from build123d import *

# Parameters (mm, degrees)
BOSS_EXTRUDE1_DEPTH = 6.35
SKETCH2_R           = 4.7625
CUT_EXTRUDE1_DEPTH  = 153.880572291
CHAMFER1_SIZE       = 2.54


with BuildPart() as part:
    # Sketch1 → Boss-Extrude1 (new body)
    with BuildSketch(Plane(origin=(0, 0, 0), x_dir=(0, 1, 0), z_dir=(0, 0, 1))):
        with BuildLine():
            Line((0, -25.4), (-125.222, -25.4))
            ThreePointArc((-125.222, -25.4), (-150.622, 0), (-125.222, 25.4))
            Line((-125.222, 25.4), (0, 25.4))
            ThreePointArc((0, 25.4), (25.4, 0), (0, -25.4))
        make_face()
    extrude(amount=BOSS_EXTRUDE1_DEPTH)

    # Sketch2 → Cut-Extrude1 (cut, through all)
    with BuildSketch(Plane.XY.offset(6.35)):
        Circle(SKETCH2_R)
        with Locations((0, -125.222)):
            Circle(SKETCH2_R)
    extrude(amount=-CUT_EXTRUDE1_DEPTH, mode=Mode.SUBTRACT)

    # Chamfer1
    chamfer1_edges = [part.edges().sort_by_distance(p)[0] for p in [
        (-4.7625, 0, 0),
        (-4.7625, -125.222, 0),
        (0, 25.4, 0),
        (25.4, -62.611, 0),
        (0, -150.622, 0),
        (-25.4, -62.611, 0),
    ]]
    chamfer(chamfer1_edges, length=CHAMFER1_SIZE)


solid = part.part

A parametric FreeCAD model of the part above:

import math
import FreeCAD as App
import Part
import Sketcher
from FreeCAD import Vector
Q = App.Units.Quantity


def edges_at(feature, points):
    """Names of the edges that pass closest to the given points."""
    edges = feature.Shape.Edges
    near = lambda p: min(range(len(edges)), key=lambda i: edges[i].distToShape(Part.Vertex(*p))[0])
    return sorted({f"Edge{near(p) + 1}" for p in points})

doc = App.newDocument("Part")
params = doc.addObject("Spreadsheet::Sheet", "Params")
for row, (alias, value) in enumerate([
    ("sketch1_radius", "1 in"),
    ("sketch1_height", "4.93 in"),
    ("pad1_length", "0.25 in"),
    ("sketch2_diameter", "0.375 in"),
    ("chamfer_size", "0.1 in"),
], start=1):
    params.set(f"A{row}", alias)
    params.set(f"B{row}", "=" + value)
    params.setAlias(f"B{row}", alias)

body = doc.addObject("PartDesign::Body", "Body")

sketch1 = body.newObject("Sketcher::SketchObject", "Sketch")
sketch1.AttachmentSupport = (doc.getObject("XY_Plane"), [""])
sketch1.MapMode = "FlatFace"
sketch1.addGeometry(Part.LineSegment(Vector(25, -125, 0), Vector(25, 0, 0)), False)
sketch1.addGeometry(Part.ArcOfCircle(Part.Circle(Vector(0, 0, 0), Vector(0, 0, 1), 25), math.radians(0), math.radians(180)), False)
sketch1.addGeometry(Part.LineSegment(Vector(-25, 0, 0), Vector(-25, -125, 0)), False)
sketch1.addGeometry(Part.ArcOfCircle(Part.Circle(Vector(0, -125, 0), Vector(0, 0, 1), 25), math.radians(180), math.radians(360)), False)
sketch1.addConstraint(Sketcher.Constraint("Tangent", 0, 2, 1, 1))
sketch1.addConstraint(Sketcher.Constraint("Tangent", 1, 2, 2, 1))
sketch1.addConstraint(Sketcher.Constraint("Tangent", 2, 2, 3, 1))
sketch1.addConstraint(Sketcher.Constraint("Tangent", 3, 2, 0, 1))
sketch1.addConstraint(Sketcher.Constraint("Vertical", 0))
sketch1.addConstraint(Sketcher.Constraint("Vertical", 2))
sketch1.addConstraint(Sketcher.Constraint("Coincident", 1, 3, -1, 1))
sketch1.addConstraint(Sketcher.Constraint("Radius", 1, Q("1 in")))
sketch1.addConstraint(Sketcher.Constraint("DistanceY", 0, 1, 0, 2, Q("4.93 in")))
sketch1.setExpression("Constraints[7]", "Params.sketch1_radius")
sketch1.setExpression("Constraints[8]", "Params.sketch1_height")
pad1 = body.newObject("PartDesign::Pad", "Pad")
pad1.Profile = sketch1
pad1.setExpression("Length", "Params.pad1_length")

sketch2 = body.newObject("Sketcher::SketchObject", "Sketch001")
sketch2.AttachmentSupport = (doc.getObject("XY_Plane"), [""])
sketch2.MapMode = "FlatFace"
sketch2.AttachmentOffset = App.Placement(Vector(0, 0, 0.25 * 25.4), App.Rotation())
sketch2.addGeometry(Part.Circle(Vector(0, 0, 0), Vector(0, 0, 1), 4.8), False)
sketch2.addGeometry(Part.Circle(Vector(0, -125.2, 0), Vector(0, 0, 1), 4.8), False)
sketch2.addConstraint(Sketcher.Constraint("Coincident", 0, 3, -1, 1))
sketch2.addConstraint(Sketcher.Constraint("Equal", 0, 1))
sketch2.addConstraint(Sketcher.Constraint("PointOnObject", 1, 3, -2))
sketch2.addConstraint(Sketcher.Constraint("Diameter", 0, Q("0.375 in")))
sketch2.addConstraint(Sketcher.Constraint("DistanceY", 1, 3, -1, 1, Q("4.93 in")))
sketch2.setExpression("Constraints[3]", "Params.sketch2_diameter")
pocket1 = body.newObject("PartDesign::Pocket", "Pocket")
pocket1.Profile = sketch2
pocket1.Type = "ThroughAll"
doc.recompute()

chamfer = body.newObject("PartDesign::Chamfer", "Chamfer")
chamfer.Base = (pocket1, edges_at(pocket1, [
    (-4.763, 0, 0),
    (-4.763, -125.222, 0),
    (0, 25.4, 0),
    (25.4, -62.611, 0),
    (0, -150.622, 0),
    (-25.4, -62.611, 0),
]))
chamfer.setExpression("Size", "Params.chamfer_size")

doc.recompute()
